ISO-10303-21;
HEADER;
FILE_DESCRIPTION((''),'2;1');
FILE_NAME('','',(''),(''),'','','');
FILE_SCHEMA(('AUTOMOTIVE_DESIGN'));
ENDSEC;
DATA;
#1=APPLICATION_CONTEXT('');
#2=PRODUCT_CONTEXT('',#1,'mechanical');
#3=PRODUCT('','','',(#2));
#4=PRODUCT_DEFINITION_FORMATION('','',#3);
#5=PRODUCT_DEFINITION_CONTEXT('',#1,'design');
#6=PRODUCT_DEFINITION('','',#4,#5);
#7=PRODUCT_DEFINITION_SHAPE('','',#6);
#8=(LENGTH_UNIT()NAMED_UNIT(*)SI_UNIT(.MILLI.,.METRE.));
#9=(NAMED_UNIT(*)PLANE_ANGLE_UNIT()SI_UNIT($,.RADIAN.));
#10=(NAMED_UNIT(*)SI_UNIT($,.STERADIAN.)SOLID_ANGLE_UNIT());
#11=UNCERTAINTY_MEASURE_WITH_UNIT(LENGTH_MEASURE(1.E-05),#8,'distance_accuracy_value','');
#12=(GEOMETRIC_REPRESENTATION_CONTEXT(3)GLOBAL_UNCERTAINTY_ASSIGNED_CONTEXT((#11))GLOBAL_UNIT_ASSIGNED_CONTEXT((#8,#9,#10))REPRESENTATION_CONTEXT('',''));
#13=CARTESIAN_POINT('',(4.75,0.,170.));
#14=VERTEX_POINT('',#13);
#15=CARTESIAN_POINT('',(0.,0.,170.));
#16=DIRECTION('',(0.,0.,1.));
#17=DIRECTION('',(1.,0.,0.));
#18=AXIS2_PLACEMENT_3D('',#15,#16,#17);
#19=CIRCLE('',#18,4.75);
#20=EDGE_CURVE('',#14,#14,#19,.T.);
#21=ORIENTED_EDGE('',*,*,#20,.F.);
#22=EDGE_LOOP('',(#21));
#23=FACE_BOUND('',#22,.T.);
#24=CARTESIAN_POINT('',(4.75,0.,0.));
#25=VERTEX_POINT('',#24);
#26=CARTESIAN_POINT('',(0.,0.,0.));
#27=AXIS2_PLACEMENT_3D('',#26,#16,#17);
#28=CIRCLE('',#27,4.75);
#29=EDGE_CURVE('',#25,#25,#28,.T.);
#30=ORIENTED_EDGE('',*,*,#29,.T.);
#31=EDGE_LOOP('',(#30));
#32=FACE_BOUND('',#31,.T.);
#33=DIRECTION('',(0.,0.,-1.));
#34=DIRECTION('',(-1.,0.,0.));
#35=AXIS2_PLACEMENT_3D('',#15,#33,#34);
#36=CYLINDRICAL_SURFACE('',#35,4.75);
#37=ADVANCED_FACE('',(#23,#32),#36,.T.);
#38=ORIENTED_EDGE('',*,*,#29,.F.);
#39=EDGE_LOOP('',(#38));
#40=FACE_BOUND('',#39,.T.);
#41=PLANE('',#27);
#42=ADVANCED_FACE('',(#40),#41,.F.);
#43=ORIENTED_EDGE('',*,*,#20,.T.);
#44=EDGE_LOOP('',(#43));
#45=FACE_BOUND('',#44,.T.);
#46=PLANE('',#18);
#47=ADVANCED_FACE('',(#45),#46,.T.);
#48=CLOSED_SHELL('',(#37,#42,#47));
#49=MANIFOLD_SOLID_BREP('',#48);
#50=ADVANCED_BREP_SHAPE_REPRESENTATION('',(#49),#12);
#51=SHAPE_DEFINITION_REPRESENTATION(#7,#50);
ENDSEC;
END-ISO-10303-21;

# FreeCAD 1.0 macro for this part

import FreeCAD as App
import Part
import Sketcher
from FreeCAD import Vector
Q = App.Units.Quantity

doc = App.newDocument("Part")
body = doc.addObject("PartDesign::Body", "Body")

# Sketch on XY plane
sketch1 = body.newObject("Sketcher::SketchObject", "Sketch")
sketch1.AttachmentSupport = (doc.getObject("XY_Plane"), [""])
sketch1.MapMode = "FlatFace"
sketch1.addGeometry(Part.Circle(Vector(0, 0, 0), Vector(0, 0, 1), 4.75), False)
sketch1.addConstraint(Sketcher.Constraint("Coincident", 0, 3, -1, 1))
sketch1.addConstraint(Sketcher.Constraint("Diameter", 0, Q("9.5 mm")))
pad1 = body.newObject("PartDesign::Pad", "Pad")
pad1.Profile = sketch1
pad1.Length = 170

doc.recompute()
